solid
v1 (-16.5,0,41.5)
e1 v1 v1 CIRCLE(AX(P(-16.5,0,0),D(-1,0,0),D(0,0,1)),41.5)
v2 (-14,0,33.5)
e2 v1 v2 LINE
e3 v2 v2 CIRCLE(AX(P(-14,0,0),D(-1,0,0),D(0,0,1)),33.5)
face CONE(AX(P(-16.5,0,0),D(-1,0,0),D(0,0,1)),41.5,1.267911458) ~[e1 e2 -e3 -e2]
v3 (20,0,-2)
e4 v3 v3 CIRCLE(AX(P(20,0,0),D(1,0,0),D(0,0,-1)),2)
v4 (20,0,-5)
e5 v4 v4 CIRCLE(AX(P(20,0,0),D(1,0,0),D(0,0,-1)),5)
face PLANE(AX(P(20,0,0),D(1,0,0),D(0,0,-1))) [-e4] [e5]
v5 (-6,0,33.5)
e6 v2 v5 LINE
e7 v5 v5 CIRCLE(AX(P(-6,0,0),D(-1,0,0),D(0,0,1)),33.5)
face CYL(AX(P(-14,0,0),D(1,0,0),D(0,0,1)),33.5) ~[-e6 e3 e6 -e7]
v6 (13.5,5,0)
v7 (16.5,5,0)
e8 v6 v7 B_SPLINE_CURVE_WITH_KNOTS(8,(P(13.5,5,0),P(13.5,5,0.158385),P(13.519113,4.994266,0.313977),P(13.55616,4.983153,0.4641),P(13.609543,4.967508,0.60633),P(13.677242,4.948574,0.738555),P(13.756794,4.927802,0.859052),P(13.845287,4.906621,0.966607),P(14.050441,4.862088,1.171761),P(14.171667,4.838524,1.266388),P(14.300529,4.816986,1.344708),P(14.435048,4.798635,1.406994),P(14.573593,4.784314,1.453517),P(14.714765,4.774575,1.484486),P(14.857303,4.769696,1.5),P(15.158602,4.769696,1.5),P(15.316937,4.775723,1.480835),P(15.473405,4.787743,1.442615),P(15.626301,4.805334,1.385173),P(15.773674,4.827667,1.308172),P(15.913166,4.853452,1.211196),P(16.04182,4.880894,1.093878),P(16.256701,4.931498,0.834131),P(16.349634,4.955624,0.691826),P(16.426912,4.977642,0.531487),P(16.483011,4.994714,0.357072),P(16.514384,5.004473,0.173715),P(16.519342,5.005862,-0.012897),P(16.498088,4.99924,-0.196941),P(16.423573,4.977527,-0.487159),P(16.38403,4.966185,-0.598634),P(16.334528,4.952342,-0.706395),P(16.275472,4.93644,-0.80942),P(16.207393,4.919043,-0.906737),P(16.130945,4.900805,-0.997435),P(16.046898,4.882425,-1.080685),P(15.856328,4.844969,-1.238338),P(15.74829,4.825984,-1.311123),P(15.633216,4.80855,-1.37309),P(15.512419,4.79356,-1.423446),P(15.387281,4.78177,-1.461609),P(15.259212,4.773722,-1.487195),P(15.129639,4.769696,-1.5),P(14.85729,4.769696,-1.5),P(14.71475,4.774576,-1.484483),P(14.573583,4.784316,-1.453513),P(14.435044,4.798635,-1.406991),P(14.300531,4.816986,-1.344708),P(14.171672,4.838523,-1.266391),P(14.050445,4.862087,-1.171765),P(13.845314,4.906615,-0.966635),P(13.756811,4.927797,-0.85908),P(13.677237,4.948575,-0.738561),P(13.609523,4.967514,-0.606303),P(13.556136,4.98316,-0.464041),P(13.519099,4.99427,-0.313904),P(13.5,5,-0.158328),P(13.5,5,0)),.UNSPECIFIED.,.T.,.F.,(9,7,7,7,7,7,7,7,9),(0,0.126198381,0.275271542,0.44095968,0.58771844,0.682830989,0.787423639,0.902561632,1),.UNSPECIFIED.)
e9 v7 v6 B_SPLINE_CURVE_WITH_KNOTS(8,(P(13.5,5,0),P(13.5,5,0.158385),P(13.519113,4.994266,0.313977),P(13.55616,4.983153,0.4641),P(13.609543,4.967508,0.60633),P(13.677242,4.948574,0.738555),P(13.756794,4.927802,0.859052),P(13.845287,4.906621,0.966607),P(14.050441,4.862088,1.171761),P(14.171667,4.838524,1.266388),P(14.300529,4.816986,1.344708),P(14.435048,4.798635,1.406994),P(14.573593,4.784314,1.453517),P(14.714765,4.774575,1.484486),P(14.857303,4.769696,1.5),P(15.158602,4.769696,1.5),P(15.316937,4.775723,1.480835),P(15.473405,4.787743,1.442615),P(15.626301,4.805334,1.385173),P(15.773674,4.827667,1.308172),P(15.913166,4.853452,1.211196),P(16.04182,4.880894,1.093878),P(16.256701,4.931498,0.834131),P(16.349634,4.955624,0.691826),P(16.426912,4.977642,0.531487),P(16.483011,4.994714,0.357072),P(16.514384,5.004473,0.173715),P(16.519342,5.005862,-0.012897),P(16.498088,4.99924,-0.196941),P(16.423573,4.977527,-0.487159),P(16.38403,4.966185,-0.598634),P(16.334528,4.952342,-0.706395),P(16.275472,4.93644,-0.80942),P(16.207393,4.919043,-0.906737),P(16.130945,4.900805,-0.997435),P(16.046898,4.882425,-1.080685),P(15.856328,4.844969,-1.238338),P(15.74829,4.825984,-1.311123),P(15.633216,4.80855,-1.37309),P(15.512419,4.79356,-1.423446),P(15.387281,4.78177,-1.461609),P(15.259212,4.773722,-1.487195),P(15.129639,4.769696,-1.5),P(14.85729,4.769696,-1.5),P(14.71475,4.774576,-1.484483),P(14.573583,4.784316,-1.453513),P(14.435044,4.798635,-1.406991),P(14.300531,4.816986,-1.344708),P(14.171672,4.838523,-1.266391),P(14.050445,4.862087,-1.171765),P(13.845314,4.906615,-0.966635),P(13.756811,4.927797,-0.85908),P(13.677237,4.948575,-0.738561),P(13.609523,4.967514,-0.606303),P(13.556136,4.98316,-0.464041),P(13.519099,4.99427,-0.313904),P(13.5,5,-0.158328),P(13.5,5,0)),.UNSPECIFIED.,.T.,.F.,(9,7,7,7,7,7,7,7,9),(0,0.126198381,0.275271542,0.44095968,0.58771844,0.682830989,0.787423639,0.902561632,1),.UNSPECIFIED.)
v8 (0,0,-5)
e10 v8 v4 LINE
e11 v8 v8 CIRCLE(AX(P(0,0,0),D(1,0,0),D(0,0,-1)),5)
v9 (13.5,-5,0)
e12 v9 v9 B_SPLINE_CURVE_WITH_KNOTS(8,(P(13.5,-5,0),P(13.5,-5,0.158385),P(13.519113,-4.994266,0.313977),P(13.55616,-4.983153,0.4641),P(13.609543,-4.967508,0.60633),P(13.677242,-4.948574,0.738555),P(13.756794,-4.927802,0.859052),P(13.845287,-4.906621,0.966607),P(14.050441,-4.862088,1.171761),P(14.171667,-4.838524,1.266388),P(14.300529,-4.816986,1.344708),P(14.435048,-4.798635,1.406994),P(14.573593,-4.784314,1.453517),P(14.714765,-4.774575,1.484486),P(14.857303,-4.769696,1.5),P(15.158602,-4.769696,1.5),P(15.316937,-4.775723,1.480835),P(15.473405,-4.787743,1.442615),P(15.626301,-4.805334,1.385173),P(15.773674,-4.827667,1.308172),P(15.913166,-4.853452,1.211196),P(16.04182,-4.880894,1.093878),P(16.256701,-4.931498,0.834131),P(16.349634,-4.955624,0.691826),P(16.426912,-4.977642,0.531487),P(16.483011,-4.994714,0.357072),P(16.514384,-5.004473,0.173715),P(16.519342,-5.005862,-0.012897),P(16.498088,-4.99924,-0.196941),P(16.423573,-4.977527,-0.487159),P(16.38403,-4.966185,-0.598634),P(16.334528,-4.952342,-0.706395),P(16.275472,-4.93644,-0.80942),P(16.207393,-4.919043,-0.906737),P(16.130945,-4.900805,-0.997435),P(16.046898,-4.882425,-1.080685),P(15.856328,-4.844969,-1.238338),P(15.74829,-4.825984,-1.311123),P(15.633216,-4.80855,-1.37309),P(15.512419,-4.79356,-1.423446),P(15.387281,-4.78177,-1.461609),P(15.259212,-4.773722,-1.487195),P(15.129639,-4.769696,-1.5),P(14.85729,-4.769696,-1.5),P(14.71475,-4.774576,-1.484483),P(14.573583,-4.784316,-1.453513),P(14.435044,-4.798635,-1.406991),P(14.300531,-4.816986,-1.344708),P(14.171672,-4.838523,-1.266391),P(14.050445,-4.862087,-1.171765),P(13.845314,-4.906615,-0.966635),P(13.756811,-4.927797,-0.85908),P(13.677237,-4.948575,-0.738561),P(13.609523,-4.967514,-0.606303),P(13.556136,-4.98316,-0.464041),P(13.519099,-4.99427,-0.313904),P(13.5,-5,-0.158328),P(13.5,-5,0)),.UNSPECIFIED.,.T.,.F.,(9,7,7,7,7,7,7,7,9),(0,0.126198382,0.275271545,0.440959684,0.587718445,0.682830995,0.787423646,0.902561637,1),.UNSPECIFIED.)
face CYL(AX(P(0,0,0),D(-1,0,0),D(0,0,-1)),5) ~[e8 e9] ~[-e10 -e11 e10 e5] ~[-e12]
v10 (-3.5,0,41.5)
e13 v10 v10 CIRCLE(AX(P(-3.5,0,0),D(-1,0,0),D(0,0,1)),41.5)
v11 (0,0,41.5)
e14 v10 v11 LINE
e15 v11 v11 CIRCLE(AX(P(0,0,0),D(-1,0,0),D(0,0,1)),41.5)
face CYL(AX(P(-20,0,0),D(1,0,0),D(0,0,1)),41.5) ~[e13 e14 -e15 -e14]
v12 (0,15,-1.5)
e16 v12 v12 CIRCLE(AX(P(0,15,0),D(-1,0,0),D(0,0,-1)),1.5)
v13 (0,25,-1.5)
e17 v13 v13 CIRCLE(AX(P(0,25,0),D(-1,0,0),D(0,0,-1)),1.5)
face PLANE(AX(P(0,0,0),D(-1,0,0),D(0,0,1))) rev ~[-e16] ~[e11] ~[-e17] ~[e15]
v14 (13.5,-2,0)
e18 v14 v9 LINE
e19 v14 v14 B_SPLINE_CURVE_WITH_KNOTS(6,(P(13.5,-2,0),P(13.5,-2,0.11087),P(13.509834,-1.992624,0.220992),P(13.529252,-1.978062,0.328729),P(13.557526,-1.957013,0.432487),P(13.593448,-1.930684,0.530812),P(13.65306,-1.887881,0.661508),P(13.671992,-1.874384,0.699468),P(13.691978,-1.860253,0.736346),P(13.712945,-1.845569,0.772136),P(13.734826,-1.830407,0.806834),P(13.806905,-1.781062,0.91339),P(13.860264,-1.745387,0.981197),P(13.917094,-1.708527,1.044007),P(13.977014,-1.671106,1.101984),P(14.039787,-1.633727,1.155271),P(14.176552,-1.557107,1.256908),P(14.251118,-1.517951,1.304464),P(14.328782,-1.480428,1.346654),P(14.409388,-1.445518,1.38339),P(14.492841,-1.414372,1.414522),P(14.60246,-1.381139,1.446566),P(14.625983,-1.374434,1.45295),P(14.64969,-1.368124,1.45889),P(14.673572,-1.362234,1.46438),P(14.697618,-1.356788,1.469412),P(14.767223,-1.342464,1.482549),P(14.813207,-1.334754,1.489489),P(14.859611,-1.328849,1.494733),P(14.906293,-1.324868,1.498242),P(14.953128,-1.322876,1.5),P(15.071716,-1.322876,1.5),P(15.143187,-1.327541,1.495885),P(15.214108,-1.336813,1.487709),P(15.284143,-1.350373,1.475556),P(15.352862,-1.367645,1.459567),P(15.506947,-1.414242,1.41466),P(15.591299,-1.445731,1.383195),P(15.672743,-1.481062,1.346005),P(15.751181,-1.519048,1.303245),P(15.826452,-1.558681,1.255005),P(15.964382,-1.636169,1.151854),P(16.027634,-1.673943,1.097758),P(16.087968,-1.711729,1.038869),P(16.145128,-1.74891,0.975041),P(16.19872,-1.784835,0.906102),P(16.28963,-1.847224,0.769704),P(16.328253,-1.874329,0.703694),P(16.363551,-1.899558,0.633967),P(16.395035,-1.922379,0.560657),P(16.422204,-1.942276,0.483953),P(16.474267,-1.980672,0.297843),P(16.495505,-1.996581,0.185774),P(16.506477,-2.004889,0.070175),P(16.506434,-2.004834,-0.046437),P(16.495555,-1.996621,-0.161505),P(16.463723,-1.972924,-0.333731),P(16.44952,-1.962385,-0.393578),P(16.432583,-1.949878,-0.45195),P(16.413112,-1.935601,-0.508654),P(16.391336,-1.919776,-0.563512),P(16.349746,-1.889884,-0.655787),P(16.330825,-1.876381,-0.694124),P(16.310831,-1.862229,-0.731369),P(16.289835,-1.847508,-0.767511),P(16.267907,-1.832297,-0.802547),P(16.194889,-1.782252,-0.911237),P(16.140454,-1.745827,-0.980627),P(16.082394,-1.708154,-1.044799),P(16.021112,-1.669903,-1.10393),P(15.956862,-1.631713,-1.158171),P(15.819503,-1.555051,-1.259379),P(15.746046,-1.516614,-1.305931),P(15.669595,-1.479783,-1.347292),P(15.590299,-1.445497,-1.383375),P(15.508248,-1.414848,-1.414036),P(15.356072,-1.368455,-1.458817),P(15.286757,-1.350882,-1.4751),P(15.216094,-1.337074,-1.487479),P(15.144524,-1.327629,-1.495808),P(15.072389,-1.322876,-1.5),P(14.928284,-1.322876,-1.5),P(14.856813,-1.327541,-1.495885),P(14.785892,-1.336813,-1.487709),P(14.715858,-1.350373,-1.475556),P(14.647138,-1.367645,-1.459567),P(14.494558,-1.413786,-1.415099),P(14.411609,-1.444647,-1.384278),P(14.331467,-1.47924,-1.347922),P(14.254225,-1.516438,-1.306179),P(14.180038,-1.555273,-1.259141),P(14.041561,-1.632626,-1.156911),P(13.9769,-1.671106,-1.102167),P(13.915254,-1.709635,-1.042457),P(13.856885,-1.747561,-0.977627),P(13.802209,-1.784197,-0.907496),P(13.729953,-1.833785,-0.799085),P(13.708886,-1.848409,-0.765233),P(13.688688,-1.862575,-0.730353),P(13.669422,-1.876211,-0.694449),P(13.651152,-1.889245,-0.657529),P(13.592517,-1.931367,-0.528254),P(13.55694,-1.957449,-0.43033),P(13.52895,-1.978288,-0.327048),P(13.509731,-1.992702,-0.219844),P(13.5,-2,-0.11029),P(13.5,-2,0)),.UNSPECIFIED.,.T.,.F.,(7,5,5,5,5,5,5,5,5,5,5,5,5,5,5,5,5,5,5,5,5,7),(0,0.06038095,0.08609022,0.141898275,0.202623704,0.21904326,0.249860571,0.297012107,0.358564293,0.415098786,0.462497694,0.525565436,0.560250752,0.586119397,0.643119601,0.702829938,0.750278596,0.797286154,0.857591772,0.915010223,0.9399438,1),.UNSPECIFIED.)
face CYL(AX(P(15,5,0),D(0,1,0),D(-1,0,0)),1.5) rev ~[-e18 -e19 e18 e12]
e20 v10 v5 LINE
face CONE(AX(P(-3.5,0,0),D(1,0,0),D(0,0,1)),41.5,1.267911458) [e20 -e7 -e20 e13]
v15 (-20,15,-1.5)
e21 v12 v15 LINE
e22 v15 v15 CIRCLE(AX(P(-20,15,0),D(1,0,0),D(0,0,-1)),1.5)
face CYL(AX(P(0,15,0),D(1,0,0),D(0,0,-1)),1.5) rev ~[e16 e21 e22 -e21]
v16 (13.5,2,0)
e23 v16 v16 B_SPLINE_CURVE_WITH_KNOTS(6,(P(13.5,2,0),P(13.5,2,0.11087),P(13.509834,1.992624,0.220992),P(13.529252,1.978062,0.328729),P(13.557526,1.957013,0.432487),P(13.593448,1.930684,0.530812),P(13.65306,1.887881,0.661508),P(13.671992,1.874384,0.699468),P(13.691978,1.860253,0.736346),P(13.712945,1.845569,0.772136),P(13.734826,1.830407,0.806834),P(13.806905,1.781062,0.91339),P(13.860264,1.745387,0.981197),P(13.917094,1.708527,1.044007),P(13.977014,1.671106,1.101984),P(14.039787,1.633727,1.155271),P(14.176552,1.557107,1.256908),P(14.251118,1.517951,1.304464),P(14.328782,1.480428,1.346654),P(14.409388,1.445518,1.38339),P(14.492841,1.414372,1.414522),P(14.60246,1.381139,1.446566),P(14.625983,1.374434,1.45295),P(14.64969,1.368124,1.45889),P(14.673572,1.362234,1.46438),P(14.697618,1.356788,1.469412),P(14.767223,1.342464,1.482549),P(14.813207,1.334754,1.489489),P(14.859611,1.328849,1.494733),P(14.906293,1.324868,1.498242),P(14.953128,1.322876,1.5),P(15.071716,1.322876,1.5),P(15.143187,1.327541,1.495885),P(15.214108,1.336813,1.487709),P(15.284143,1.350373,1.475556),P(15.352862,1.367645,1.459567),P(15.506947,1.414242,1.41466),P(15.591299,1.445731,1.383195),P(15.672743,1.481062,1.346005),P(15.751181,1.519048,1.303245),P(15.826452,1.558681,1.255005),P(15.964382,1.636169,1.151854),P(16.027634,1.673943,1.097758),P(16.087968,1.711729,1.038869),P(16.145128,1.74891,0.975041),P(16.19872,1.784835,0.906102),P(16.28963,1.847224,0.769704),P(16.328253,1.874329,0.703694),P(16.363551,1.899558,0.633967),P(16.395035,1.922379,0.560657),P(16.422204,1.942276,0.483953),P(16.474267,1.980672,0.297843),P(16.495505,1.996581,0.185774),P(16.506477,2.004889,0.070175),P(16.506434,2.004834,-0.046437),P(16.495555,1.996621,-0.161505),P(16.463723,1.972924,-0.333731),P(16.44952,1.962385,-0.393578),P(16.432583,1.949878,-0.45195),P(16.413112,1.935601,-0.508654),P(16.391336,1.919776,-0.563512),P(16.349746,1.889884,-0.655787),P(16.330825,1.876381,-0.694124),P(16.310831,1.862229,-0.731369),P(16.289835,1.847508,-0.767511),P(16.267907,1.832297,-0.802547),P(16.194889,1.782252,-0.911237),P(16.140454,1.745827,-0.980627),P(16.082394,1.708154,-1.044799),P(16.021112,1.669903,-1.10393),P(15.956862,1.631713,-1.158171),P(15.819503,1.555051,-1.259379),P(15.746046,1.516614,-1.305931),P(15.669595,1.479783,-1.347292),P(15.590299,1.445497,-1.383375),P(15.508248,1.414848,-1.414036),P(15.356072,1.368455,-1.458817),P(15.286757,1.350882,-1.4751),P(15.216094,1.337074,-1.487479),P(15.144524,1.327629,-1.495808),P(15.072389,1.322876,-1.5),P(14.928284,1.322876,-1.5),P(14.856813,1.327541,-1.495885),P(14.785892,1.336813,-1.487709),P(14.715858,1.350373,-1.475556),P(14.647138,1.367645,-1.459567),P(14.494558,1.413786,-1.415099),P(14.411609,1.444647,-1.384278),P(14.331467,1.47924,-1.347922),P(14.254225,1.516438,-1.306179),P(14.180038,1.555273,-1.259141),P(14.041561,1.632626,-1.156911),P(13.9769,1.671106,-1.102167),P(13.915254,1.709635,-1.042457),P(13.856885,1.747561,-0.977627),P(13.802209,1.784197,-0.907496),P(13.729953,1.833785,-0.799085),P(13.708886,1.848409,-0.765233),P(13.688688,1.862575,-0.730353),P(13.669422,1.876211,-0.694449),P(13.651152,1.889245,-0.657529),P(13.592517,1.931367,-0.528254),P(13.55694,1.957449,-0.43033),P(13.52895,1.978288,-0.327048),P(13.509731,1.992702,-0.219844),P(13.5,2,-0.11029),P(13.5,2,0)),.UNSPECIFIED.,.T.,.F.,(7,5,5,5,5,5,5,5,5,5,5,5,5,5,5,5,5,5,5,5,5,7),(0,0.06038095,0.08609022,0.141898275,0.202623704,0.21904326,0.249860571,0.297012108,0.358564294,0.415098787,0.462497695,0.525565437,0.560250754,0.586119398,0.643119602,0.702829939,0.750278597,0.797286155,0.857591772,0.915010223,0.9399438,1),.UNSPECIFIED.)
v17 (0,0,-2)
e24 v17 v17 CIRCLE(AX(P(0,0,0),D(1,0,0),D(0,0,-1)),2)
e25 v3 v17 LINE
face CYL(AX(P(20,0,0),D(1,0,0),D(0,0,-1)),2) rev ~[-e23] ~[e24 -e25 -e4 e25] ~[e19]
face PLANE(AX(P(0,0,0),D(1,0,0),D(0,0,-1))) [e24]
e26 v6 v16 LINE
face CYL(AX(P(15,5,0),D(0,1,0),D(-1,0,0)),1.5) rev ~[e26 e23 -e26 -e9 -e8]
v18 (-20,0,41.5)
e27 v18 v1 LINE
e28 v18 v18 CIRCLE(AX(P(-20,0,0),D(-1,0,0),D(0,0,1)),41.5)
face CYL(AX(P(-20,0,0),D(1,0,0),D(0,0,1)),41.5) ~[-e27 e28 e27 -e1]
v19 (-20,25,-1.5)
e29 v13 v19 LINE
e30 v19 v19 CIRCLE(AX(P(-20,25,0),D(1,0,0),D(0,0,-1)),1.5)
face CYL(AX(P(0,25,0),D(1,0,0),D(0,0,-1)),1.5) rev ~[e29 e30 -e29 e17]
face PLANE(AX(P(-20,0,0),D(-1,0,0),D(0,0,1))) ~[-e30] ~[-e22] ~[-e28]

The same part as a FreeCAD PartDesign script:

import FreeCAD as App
import Part
import Sketcher

V = App.Vector
Q = App.Units.Quantity


def add_polygon(sketch, points):
    """Adds a closed chain of lines whose ends are joined by coincident constraints."""
    first, n = sketch.GeometryCount, len(points)
    for a, b in zip(points, points[1:] + points[:1]):
        sketch.addGeometry(Part.LineSegment(App.Vector(*a, 0), App.Vector(*b, 0)), False)
    for i in range(n):
        sketch.addConstraint(Sketcher.Constraint("Coincident", first + i, 2, first + (i + 1) % n, 1))

doc = App.newDocument("Part")
body = doc.addObject("PartDesign::Body", "Body")

sketch1 = body.newObject("Sketcher::SketchObject", "Sketch")
sketch1.AttachmentSupport = (doc.getObject("XZ_Plane"), [""])
sketch1.MapMode = "FlatFace"
add_polygon(sketch1, [(0, 41.5), (0, 0), (-20, 0), (-20, 41.5), (-16.5, 41.5), (-14, 33.5), (-6, 33.5), (-3.5, 41.5)])
sketch1.addConstraint([
    Sketcher.Constraint("Vertical", 0),
    Sketcher.Constraint("Horizontal", 1),
    Sketcher.Constraint("Vertical", 2),
    Sketcher.Constraint("Horizontal", 3),
    Sketcher.Constraint("Horizontal", 5),
    Sketcher.Constraint("Horizontal", 7),
    Sketcher.Constraint("Coincident", 0, 2, -1, 1),
    Sketcher.Constraint("Horizontal", 3, 2, 6, 2),
    Sketcher.Constraint("Equal", 3, 7),
    Sketcher.Constraint("Equal", 4, 6),
    Sketcher.Constraint("DistanceX", 1, 2, 1, 1, Q("20 mm")),
    Sketcher.Constraint("DistanceX", 5, 1, 5, 2, Q("8 mm")),
    Sketcher.Constraint("DistanceY", 0, 2, 0, 1, Q("41.5 mm")),
    Sketcher.Constraint("DistanceY", 4, 2, 3, 2, Q("8 mm")),
    Sketcher.Constraint("DistanceX", 3, 1, 3, 2, Q("3.5 mm")),
])
revolution = body.newObject("PartDesign::Revolution", "Revolution")
revolution.Profile = sketch1
revolution.ReferenceAxis = (sketch1, ["H_Axis"])
revolution.Angle = 360

sketch2 = body.newObject("Sketcher::SketchObject", "Sketch001")
sketch2.AttachmentSupport = (doc.getObject("YZ_Plane"), [""])
sketch2.MapMode = "FlatFace"
sketch2.addGeometry(Part.Circle(V(0, 0, 0), V(0, 0, 1), 5), False)
sketch2.addConstraint([
    Sketcher.Constraint("Coincident", 0, 3, -1, 1),
    Sketcher.Constraint("Diameter", 0, Q("10 mm")),
])
pad1 = body.newObject("PartDesign::Pad", "Pad")
pad1.Profile = sketch2
pad1.Length = 20

sketch3 = body.newObject("Sketcher::SketchObject", "Sketch002")
sketch3.AttachmentSupport = (doc.getObject("YZ_Plane"), [""])
sketch3.MapMode = "FlatFace"
sketch3.AttachmentOffset = App.Placement(V(0, 0, 20), App.Rotation())
sketch3.addGeometry(Part.Circle(V(0, 0, 0), V(0, 0, 1), 2), False)
sketch3.addConstraint([
    Sketcher.Constraint("Coincident", 0, 3, -1, 1),
    Sketcher.Constraint("Diameter", 0, Q("4 mm")),
])
pocket1 = body.newObject("PartDesign::Pocket", "Pocket")
pocket1.Profile = sketch3
pocket1.Length = 20

sketch4 = body.newObject("Sketcher::SketchObject", "Sketch003")
sketch4.AttachmentSupport = (doc.getObject("XZ_Plane"), [""])
sketch4.MapMode = "FlatFace"
sketch4.AttachmentOffset = App.Placement(V(0, 0, -5), App.Rotation())
sketch4.addGeometry(Part.Circle(V(15, 0, 0), V(0, 0, 1), 1.5), False)
sketch4.addConstraint([
    Sketcher.Constraint("PointOnObject", 0, 3, -1),
    Sketcher.Constraint("Diameter", 0, Q("3 mm")),
    Sketcher.Constraint("DistanceX", -1, 1, 0, 3, Q("15 mm")),
])
pocket2 = body.newObject("PartDesign::Pocket", "Pocket001")
pocket2.Profile = sketch4
pocket2.Length = 58
pocket2.Reversed = True

sketch5 = body.newObject("Sketcher::SketchObject", "Sketch004")
sketch5.AttachmentSupport = (doc.getObject("YZ_Plane"), [""])
sketch5.MapMode = "FlatFace"
sketch5.addGeometry([
    Part.Circle(V(25, 0, 0), V(0, 0, 1), 1.5),
    Part.Circle(V(15, 0, 0), V(0, 0, 1), 1.5),
], False)
sketch5.addConstraint([
    Sketcher.Constraint("Equal", 0, 1),
    Sketcher.Constraint("PointOnObject", 0, 3, -1),
    Sketcher.Constraint("PointOnObject", 1, 3, -1),
    Sketcher.Constraint("Diameter", 0, Q("3 mm")),
    Sketcher.Constraint("DistanceX", -1, 1, 0, 3, Q("25 mm")),
    Sketcher.Constraint("DistanceX", -1, 1, 1, 3, Q("15 mm")),
])
pocket3 = body.newObject("PartDesign::Pocket", "Pocket002")
pocket3.Profile = sketch5
pocket3.Length = 59.75

doc.recompute()
